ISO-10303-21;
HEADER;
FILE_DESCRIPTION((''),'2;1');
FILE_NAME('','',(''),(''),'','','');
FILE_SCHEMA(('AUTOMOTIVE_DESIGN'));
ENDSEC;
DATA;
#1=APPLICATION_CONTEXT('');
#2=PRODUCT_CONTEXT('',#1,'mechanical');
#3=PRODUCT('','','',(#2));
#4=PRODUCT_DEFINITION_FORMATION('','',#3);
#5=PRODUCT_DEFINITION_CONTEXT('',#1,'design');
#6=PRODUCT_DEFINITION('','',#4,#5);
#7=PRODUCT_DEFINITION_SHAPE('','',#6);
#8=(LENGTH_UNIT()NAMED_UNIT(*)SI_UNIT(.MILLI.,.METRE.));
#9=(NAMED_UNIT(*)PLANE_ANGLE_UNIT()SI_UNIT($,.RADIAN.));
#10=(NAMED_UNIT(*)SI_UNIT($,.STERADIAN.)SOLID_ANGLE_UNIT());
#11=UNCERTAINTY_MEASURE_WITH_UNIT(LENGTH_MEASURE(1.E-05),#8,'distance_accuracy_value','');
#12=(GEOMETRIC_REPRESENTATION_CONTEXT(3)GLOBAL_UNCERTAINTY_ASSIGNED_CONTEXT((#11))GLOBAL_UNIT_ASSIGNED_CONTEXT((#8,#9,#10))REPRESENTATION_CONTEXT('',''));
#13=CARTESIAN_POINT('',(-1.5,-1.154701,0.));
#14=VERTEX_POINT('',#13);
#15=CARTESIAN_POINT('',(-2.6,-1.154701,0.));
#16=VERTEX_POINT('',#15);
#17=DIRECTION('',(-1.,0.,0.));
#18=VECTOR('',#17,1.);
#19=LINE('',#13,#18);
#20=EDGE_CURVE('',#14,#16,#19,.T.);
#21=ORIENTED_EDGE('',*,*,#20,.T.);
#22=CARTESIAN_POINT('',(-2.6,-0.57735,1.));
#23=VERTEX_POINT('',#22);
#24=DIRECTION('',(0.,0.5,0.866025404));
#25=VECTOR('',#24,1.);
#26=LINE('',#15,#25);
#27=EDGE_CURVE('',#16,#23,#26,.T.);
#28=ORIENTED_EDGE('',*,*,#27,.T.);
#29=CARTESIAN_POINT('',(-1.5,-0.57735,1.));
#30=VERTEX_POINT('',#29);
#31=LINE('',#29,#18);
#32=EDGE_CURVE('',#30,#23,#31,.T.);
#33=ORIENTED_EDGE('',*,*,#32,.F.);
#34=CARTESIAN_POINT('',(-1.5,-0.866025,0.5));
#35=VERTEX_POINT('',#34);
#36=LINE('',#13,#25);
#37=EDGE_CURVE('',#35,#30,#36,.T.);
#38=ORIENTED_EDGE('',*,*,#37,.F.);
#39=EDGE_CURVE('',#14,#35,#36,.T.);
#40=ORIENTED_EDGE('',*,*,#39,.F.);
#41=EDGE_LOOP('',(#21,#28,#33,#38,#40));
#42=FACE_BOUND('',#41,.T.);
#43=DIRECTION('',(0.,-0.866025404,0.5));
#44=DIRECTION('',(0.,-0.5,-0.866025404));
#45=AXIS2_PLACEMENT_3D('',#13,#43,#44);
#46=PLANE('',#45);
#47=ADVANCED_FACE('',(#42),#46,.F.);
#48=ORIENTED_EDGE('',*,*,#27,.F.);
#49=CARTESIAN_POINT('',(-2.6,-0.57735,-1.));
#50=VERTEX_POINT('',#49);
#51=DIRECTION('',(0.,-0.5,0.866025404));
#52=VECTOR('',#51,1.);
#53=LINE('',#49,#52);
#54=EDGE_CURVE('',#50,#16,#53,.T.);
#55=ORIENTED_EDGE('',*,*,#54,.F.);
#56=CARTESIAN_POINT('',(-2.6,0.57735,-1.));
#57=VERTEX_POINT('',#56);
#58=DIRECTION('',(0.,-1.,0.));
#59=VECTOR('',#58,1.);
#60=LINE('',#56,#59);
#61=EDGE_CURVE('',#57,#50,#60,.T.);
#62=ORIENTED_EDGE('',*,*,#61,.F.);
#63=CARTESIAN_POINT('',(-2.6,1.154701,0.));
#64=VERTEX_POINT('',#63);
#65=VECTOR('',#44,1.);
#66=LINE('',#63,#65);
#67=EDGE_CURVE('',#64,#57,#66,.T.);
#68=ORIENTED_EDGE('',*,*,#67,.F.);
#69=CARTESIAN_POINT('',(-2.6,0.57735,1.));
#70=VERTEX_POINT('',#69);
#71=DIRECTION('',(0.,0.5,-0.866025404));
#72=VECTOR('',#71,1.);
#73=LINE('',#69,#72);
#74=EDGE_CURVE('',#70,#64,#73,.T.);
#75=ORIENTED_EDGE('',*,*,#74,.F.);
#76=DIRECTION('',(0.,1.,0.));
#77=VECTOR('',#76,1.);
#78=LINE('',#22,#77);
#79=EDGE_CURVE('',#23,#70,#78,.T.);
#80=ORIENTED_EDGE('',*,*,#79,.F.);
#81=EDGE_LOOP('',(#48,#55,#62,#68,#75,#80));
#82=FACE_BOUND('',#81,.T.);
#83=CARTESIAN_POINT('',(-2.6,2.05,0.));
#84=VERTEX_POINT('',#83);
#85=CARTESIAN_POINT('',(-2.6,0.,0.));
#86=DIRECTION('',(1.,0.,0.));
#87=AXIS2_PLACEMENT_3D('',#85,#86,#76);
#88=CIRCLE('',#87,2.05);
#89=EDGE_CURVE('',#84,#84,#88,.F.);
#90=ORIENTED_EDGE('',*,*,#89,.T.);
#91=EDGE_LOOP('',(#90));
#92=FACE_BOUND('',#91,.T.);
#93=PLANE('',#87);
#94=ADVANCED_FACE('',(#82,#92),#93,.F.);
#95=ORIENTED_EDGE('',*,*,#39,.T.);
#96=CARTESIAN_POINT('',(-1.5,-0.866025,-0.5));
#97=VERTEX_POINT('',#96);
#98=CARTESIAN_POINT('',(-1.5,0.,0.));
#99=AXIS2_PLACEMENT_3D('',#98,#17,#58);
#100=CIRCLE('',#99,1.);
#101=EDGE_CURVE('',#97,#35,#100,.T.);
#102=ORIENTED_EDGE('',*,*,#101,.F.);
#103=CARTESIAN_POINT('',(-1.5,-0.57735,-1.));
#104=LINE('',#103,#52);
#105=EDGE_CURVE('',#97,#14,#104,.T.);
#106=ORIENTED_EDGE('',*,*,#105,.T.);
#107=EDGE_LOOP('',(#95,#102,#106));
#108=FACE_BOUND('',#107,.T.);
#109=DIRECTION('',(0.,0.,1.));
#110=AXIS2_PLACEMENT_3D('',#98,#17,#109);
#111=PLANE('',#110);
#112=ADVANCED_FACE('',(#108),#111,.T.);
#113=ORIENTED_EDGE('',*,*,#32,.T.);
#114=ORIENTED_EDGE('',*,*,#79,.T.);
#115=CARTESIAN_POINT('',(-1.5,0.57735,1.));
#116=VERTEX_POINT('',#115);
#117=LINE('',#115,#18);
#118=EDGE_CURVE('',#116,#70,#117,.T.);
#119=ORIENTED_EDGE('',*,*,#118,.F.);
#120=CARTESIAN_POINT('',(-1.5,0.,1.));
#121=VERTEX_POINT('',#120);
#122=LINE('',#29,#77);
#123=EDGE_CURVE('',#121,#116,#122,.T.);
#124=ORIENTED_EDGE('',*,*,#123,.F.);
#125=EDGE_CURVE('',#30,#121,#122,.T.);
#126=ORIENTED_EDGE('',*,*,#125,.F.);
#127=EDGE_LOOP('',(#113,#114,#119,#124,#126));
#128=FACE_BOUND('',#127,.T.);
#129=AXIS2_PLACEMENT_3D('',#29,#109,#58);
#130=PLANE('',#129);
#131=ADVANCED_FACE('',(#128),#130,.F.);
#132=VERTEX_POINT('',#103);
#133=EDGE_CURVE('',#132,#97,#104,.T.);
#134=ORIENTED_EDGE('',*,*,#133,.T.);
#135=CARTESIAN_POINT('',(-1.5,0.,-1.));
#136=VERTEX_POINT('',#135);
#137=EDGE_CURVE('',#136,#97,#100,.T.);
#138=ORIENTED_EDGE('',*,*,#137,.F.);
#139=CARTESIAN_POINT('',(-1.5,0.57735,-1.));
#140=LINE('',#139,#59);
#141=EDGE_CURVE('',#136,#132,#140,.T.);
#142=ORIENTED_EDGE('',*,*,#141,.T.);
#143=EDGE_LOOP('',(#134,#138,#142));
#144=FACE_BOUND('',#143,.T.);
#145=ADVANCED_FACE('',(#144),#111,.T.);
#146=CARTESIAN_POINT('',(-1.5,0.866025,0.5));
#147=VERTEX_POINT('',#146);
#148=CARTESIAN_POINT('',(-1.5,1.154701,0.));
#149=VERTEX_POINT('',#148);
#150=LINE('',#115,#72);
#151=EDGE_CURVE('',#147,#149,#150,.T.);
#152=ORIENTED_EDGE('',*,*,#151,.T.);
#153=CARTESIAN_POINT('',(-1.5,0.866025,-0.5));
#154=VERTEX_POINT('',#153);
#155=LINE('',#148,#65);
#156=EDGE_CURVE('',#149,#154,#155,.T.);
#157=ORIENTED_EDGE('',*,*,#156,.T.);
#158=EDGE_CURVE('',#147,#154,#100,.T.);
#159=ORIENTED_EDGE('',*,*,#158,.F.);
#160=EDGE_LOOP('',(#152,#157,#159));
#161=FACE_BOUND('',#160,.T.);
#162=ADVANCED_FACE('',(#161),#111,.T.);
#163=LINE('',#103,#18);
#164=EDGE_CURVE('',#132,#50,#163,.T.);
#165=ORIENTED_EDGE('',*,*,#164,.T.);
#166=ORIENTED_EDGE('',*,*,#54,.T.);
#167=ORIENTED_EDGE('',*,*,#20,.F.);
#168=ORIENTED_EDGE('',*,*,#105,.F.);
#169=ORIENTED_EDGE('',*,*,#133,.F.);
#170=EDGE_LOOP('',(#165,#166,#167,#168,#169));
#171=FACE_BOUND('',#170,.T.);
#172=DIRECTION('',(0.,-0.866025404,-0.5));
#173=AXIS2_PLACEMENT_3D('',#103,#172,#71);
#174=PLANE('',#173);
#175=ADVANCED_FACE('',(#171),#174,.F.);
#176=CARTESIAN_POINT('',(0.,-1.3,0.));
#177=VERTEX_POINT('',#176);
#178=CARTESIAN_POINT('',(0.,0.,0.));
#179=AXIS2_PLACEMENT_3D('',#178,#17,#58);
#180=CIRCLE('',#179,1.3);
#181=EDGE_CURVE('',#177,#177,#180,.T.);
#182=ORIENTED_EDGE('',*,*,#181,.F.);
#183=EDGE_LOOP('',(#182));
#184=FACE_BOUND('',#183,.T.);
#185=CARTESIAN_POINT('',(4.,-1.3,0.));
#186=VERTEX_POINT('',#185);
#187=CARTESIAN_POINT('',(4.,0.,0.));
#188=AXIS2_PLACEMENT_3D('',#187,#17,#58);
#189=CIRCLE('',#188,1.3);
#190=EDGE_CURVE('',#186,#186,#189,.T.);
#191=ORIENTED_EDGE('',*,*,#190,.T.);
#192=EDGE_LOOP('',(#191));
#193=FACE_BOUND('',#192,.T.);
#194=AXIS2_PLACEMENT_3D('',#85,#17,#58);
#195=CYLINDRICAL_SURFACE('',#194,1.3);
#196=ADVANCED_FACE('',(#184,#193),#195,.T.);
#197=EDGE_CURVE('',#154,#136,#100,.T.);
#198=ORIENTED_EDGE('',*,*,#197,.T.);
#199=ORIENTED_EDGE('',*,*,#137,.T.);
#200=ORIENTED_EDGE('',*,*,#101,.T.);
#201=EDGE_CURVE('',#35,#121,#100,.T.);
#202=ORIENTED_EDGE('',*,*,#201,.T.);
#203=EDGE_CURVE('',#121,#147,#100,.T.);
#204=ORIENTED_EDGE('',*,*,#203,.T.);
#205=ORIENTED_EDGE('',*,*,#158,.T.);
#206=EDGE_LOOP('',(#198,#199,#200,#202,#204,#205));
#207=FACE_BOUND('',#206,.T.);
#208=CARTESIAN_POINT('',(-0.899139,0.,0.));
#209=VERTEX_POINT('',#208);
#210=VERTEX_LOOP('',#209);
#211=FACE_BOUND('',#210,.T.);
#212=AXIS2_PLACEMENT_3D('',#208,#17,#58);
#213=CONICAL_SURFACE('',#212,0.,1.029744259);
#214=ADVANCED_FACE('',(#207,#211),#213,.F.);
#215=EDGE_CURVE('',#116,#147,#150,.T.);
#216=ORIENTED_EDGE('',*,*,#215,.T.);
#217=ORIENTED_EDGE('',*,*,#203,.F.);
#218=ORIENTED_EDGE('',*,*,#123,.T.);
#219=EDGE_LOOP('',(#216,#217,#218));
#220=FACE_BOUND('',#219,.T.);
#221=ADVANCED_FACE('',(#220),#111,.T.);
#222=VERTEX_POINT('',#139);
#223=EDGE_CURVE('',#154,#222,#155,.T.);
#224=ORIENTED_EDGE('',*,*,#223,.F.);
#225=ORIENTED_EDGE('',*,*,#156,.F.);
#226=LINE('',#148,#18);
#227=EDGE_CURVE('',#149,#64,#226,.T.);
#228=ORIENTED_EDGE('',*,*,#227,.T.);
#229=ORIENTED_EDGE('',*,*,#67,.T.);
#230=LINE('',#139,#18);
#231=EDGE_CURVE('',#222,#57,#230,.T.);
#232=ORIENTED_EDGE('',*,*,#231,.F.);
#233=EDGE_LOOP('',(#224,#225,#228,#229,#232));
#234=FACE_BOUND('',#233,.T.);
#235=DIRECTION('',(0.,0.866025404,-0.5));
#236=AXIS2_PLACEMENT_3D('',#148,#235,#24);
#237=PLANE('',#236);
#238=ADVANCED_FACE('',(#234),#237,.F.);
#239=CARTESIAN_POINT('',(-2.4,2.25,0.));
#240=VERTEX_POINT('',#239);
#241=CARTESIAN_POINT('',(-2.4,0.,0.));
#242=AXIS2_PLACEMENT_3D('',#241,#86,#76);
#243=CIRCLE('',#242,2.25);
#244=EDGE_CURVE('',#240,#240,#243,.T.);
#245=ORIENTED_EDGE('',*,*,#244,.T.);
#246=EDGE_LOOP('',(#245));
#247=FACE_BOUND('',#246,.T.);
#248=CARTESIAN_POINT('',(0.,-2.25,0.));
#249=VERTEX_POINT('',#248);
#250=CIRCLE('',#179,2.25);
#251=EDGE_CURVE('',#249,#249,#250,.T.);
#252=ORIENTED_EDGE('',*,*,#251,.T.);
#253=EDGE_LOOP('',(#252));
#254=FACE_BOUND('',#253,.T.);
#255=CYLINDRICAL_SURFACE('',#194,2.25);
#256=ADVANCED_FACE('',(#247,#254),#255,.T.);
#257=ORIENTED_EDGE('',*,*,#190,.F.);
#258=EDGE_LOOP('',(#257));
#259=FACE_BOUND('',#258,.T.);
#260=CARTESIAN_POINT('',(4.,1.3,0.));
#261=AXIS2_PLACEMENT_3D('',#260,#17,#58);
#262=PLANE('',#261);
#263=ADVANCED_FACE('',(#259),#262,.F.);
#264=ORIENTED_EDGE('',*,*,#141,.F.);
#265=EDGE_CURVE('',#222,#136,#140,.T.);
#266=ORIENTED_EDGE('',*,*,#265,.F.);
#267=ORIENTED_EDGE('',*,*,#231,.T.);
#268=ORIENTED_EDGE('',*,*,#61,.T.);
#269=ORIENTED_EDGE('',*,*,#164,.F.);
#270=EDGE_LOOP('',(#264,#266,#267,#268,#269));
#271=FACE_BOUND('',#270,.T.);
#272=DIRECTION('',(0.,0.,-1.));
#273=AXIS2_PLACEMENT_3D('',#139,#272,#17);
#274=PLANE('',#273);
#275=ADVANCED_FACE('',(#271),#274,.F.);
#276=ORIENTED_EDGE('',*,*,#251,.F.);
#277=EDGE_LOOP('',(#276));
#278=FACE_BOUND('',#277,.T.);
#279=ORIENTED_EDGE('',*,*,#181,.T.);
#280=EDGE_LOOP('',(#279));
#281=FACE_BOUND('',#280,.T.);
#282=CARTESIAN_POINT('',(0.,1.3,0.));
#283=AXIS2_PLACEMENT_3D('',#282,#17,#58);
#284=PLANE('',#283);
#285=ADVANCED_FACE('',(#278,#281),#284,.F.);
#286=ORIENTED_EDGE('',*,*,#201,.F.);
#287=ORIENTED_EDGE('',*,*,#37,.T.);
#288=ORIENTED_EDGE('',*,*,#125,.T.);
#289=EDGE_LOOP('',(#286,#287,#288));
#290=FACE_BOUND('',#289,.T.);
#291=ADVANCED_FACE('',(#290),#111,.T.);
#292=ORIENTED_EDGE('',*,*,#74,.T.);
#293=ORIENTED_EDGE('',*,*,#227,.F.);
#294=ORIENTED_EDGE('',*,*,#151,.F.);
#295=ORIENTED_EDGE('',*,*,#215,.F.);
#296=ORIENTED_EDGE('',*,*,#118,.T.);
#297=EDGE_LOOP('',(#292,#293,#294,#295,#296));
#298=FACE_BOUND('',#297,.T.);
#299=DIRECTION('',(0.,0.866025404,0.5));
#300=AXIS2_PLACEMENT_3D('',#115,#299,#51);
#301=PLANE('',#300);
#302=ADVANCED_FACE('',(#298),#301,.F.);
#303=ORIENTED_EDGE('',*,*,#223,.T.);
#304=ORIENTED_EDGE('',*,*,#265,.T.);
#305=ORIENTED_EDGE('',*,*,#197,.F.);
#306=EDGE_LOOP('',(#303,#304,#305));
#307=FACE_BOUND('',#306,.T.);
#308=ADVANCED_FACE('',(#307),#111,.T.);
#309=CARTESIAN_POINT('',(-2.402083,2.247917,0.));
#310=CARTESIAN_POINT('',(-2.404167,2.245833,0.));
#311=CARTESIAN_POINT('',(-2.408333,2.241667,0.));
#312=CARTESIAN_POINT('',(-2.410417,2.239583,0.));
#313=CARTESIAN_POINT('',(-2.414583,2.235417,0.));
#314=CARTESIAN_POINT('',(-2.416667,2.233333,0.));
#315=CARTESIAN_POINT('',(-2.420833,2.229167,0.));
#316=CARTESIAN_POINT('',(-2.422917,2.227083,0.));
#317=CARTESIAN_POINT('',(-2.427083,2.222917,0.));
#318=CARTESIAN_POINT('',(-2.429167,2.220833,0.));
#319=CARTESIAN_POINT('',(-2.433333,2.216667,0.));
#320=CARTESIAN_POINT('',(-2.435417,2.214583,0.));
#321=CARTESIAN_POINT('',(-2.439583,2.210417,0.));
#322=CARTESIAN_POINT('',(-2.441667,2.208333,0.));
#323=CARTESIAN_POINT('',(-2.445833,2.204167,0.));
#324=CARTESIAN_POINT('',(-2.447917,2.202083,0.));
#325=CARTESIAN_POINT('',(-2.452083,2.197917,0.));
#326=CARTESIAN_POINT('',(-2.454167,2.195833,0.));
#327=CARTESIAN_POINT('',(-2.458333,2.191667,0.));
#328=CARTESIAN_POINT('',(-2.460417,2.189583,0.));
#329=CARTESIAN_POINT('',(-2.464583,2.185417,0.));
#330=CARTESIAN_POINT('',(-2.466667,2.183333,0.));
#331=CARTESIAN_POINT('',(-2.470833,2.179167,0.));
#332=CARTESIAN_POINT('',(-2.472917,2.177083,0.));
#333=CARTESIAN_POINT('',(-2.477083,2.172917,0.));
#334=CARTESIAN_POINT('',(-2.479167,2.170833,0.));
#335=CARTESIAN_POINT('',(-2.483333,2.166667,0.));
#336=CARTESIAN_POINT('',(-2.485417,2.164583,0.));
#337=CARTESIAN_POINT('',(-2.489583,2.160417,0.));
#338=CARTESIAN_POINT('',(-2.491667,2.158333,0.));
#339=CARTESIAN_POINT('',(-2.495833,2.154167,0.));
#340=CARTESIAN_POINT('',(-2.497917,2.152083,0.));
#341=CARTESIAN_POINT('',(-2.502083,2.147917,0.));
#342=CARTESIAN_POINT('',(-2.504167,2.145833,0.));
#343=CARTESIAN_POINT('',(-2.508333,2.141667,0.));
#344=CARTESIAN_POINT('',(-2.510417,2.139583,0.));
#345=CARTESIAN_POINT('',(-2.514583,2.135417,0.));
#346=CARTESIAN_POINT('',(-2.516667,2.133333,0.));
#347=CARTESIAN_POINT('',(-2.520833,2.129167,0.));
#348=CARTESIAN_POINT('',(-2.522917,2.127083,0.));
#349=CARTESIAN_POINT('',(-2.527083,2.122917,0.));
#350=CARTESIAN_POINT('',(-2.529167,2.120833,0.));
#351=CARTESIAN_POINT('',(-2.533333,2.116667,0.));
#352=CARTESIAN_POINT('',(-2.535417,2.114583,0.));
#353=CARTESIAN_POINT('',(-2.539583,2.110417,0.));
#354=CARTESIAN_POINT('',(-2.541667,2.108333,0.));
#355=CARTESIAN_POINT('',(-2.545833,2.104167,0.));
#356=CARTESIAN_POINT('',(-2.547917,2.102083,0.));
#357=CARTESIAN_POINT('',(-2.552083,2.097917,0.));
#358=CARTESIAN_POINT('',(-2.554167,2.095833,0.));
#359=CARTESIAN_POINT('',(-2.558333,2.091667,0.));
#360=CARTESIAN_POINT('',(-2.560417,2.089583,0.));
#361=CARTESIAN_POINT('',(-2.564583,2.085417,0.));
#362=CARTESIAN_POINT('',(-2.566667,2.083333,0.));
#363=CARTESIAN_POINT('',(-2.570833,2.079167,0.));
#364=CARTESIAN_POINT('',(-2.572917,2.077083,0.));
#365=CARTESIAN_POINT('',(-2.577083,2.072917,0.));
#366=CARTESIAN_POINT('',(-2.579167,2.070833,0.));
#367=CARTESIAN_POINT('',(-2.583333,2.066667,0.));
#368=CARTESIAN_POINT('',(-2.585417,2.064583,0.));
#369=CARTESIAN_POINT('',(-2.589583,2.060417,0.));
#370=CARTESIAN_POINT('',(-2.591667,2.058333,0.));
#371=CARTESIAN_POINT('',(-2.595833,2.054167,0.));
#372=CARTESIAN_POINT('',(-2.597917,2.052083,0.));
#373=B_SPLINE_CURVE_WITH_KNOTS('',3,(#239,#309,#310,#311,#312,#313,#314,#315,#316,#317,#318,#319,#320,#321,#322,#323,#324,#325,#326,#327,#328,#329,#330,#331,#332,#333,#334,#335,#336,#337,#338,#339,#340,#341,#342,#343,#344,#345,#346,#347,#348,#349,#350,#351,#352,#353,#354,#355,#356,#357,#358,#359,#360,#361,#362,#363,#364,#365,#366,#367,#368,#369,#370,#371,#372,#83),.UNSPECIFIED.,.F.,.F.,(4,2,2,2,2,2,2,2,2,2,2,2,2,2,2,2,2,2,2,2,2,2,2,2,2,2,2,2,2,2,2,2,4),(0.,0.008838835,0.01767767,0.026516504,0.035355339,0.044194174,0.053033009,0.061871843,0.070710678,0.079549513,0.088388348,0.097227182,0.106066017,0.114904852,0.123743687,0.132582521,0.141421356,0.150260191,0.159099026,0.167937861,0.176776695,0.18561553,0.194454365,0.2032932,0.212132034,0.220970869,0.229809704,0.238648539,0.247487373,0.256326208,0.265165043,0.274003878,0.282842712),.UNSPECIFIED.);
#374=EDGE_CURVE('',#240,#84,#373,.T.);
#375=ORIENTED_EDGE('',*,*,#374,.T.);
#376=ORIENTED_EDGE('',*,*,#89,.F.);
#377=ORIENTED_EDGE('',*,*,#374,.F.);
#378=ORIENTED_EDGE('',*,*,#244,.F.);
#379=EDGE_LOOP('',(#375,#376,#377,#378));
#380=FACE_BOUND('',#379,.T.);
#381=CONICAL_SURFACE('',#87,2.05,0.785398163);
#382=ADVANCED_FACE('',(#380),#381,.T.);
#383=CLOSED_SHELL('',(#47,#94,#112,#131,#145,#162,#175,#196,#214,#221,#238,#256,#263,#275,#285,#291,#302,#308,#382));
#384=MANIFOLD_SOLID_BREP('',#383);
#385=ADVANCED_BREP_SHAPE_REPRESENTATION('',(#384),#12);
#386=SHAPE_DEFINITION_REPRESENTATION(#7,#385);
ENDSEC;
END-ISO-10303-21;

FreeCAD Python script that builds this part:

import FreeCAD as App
import Part
import Sketcher
Q = App.Units.Quantity


def edges_at(feature, points):
    """Names of the edges that pass closest to the given points."""
    edges = feature.Shape.Edges
    near = lambda p: min(range(len(edges)), key=lambda i: edges[i].distToShape(Part.Vertex(*p))[0])
    return sorted({f"Edge{near(p) + 1}" for p in points})


def add_polygon(sketch, points):
    """Adds a closed chain of lines whose ends are joined by coincident constraints."""
    first, n = sketch.GeometryCount, len(points)
    for a, b in zip(points, points[1:] + points[:1]):
        sketch.addGeometry(Part.LineSegment(App.Vector(*a, 0), App.Vector(*b, 0)), False)
    for i in range(n):
        sketch.addConstraint(Sketcher.Constraint("Coincident", first + i, 2, first + (i + 1) % n, 1))

doc = App.newDocument("Part")
body = doc.addObject("PartDesign::Body", "Body")

# Sketch on XY plane
sketch1 = body.newObject("Sketcher::SketchObject", "Sketch")
sketch1.AttachmentSupport = (doc.getObject("XY_Plane"), [""])
sketch1.MapMode = "FlatFace"
add_polygon(sketch1, [(4, 1.3), (0, 1.3), (0, 2.25), (-2.6, 2.25), (-2.6, 0), (4, 0)])  # lines 0-5
sketch1.addConstraint([
    Sketcher.Constraint("Horizontal", 0),
    Sketcher.Constraint("Vertical", 1),
    Sketcher.Constraint("Horizontal", 2),
    Sketcher.Constraint("Vertical", 3),
    Sketcher.Constraint("Horizontal", 4),
    Sketcher.Constraint("Vertical", 5),
    Sketcher.Constraint("PointOnObject", 0, 2, -2),
    Sketcher.Constraint("PointOnObject", 3, 2, -1),
    Sketcher.Constraint("DistanceX", 0, 2, 0, 1, Q("4 mm")),
    Sketcher.Constraint("DistanceX", 2, 2, 2, 1, Q("2.6 mm")),
    Sketcher.Constraint("DistanceY", 5, 1, 5, 2, Q("1.3 mm")),
    Sketcher.Constraint("DistanceY", 1, 1, 1, 2, Q("0.95 mm")),
])
revolution = body.newObject("PartDesign::Revolution", "Revolution")
revolution.Profile = sketch1
revolution.ReferenceAxis = (sketch1, ["H_Axis"])
revolution.Angle = 360

# Sketch on XY plane
sketch2 = body.newObject("Sketcher::SketchObject", "Sketch001")
sketch2.AttachmentSupport = (doc.getObject("XY_Plane"), [""])
sketch2.MapMode = "FlatFace"
add_polygon(sketch2, [(-0.899139, 0), (-1.5, 1), (-2.6, 1), (-2.6, 0)])  # lines 0-3
sketch2.addConstraint([
    Sketcher.Constraint("Horizontal", 1),
    Sketcher.Constraint("Vertical", 2),
    Sketcher.Constraint("Horizontal", 3),
    Sketcher.Constraint("PointOnObject", 2, 2, -1),
    Sketcher.Constraint("DistanceY", 2, 2, 2, 1, Q("1 mm")),
    Sketcher.Constraint("Angle", 0, Q("121 deg")),
    Sketcher.Constraint("DistanceX", 1, 2, 1, 1, Q("1.1 mm")),
    Sketcher.Constraint("DistanceX", 0, 2, -1, 1, Q("1.5 mm")),
])
groove = body.newObject("PartDesign::Groove", "Groove")
groove.Profile = sketch2
groove.ReferenceAxis = (sketch2, ["H_Axis"])
groove.Angle = 360

# Sketch on YZ plane
sketch3 = body.newObject("Sketcher::SketchObject", "Sketch002")
sketch3.AttachmentSupport = (doc.getObject("YZ_Plane"), [""])
sketch3.MapMode = "FlatFace"
sketch3.AttachmentOffset = App.Placement(App.Vector(0, 0, -2.6), App.Rotation())
add_polygon(sketch3, [(0.57735, 1), (1.154701, 0), (0.57735, -1), (-0.57735, -1), (-1.154701, 0), (-0.57735, 1)])  # lines 0-5
sketch3.addConstraint([
    Sketcher.Constraint("Horizontal", 2),
    Sketcher.Constraint("Horizontal", 5),
    Sketcher.Constraint("Symmetric", 0, 2, 3, 2, -1, 1),
    Sketcher.Constraint("Symmetric", 1, 2, 4, 2, -1, 1),
    Sketcher.Constraint("PointOnObject", 0, 2, -1),
    Sketcher.Constraint("Parallel", 0, 3),
    Sketcher.Constraint("Vertical", 2, 2, 4, 2),
    Sketcher.Constraint("Angle", 0, Q("-60 deg")),
    Sketcher.Constraint("DistanceY", 1, 2, -1, 1, Q("1 mm")),
    Sketcher.Constraint("DistanceX", 2, 2, 2, 1, Q("1.154701 mm")),
])
pocket1 = body.newObject("PartDesign::Pocket", "Pocket")
pocket1.Profile = sketch3
pocket1.Length = 1.1
pocket1.Reversed = True
doc.recompute()

chamfer = body.newObject("PartDesign::Chamfer", "Chamfer")
chamfer.Base = (pocket1, edges_at(pocket1, [(-2.6, 2.25, 0)]))
chamfer.Size = 0.2

doc.recompute()
